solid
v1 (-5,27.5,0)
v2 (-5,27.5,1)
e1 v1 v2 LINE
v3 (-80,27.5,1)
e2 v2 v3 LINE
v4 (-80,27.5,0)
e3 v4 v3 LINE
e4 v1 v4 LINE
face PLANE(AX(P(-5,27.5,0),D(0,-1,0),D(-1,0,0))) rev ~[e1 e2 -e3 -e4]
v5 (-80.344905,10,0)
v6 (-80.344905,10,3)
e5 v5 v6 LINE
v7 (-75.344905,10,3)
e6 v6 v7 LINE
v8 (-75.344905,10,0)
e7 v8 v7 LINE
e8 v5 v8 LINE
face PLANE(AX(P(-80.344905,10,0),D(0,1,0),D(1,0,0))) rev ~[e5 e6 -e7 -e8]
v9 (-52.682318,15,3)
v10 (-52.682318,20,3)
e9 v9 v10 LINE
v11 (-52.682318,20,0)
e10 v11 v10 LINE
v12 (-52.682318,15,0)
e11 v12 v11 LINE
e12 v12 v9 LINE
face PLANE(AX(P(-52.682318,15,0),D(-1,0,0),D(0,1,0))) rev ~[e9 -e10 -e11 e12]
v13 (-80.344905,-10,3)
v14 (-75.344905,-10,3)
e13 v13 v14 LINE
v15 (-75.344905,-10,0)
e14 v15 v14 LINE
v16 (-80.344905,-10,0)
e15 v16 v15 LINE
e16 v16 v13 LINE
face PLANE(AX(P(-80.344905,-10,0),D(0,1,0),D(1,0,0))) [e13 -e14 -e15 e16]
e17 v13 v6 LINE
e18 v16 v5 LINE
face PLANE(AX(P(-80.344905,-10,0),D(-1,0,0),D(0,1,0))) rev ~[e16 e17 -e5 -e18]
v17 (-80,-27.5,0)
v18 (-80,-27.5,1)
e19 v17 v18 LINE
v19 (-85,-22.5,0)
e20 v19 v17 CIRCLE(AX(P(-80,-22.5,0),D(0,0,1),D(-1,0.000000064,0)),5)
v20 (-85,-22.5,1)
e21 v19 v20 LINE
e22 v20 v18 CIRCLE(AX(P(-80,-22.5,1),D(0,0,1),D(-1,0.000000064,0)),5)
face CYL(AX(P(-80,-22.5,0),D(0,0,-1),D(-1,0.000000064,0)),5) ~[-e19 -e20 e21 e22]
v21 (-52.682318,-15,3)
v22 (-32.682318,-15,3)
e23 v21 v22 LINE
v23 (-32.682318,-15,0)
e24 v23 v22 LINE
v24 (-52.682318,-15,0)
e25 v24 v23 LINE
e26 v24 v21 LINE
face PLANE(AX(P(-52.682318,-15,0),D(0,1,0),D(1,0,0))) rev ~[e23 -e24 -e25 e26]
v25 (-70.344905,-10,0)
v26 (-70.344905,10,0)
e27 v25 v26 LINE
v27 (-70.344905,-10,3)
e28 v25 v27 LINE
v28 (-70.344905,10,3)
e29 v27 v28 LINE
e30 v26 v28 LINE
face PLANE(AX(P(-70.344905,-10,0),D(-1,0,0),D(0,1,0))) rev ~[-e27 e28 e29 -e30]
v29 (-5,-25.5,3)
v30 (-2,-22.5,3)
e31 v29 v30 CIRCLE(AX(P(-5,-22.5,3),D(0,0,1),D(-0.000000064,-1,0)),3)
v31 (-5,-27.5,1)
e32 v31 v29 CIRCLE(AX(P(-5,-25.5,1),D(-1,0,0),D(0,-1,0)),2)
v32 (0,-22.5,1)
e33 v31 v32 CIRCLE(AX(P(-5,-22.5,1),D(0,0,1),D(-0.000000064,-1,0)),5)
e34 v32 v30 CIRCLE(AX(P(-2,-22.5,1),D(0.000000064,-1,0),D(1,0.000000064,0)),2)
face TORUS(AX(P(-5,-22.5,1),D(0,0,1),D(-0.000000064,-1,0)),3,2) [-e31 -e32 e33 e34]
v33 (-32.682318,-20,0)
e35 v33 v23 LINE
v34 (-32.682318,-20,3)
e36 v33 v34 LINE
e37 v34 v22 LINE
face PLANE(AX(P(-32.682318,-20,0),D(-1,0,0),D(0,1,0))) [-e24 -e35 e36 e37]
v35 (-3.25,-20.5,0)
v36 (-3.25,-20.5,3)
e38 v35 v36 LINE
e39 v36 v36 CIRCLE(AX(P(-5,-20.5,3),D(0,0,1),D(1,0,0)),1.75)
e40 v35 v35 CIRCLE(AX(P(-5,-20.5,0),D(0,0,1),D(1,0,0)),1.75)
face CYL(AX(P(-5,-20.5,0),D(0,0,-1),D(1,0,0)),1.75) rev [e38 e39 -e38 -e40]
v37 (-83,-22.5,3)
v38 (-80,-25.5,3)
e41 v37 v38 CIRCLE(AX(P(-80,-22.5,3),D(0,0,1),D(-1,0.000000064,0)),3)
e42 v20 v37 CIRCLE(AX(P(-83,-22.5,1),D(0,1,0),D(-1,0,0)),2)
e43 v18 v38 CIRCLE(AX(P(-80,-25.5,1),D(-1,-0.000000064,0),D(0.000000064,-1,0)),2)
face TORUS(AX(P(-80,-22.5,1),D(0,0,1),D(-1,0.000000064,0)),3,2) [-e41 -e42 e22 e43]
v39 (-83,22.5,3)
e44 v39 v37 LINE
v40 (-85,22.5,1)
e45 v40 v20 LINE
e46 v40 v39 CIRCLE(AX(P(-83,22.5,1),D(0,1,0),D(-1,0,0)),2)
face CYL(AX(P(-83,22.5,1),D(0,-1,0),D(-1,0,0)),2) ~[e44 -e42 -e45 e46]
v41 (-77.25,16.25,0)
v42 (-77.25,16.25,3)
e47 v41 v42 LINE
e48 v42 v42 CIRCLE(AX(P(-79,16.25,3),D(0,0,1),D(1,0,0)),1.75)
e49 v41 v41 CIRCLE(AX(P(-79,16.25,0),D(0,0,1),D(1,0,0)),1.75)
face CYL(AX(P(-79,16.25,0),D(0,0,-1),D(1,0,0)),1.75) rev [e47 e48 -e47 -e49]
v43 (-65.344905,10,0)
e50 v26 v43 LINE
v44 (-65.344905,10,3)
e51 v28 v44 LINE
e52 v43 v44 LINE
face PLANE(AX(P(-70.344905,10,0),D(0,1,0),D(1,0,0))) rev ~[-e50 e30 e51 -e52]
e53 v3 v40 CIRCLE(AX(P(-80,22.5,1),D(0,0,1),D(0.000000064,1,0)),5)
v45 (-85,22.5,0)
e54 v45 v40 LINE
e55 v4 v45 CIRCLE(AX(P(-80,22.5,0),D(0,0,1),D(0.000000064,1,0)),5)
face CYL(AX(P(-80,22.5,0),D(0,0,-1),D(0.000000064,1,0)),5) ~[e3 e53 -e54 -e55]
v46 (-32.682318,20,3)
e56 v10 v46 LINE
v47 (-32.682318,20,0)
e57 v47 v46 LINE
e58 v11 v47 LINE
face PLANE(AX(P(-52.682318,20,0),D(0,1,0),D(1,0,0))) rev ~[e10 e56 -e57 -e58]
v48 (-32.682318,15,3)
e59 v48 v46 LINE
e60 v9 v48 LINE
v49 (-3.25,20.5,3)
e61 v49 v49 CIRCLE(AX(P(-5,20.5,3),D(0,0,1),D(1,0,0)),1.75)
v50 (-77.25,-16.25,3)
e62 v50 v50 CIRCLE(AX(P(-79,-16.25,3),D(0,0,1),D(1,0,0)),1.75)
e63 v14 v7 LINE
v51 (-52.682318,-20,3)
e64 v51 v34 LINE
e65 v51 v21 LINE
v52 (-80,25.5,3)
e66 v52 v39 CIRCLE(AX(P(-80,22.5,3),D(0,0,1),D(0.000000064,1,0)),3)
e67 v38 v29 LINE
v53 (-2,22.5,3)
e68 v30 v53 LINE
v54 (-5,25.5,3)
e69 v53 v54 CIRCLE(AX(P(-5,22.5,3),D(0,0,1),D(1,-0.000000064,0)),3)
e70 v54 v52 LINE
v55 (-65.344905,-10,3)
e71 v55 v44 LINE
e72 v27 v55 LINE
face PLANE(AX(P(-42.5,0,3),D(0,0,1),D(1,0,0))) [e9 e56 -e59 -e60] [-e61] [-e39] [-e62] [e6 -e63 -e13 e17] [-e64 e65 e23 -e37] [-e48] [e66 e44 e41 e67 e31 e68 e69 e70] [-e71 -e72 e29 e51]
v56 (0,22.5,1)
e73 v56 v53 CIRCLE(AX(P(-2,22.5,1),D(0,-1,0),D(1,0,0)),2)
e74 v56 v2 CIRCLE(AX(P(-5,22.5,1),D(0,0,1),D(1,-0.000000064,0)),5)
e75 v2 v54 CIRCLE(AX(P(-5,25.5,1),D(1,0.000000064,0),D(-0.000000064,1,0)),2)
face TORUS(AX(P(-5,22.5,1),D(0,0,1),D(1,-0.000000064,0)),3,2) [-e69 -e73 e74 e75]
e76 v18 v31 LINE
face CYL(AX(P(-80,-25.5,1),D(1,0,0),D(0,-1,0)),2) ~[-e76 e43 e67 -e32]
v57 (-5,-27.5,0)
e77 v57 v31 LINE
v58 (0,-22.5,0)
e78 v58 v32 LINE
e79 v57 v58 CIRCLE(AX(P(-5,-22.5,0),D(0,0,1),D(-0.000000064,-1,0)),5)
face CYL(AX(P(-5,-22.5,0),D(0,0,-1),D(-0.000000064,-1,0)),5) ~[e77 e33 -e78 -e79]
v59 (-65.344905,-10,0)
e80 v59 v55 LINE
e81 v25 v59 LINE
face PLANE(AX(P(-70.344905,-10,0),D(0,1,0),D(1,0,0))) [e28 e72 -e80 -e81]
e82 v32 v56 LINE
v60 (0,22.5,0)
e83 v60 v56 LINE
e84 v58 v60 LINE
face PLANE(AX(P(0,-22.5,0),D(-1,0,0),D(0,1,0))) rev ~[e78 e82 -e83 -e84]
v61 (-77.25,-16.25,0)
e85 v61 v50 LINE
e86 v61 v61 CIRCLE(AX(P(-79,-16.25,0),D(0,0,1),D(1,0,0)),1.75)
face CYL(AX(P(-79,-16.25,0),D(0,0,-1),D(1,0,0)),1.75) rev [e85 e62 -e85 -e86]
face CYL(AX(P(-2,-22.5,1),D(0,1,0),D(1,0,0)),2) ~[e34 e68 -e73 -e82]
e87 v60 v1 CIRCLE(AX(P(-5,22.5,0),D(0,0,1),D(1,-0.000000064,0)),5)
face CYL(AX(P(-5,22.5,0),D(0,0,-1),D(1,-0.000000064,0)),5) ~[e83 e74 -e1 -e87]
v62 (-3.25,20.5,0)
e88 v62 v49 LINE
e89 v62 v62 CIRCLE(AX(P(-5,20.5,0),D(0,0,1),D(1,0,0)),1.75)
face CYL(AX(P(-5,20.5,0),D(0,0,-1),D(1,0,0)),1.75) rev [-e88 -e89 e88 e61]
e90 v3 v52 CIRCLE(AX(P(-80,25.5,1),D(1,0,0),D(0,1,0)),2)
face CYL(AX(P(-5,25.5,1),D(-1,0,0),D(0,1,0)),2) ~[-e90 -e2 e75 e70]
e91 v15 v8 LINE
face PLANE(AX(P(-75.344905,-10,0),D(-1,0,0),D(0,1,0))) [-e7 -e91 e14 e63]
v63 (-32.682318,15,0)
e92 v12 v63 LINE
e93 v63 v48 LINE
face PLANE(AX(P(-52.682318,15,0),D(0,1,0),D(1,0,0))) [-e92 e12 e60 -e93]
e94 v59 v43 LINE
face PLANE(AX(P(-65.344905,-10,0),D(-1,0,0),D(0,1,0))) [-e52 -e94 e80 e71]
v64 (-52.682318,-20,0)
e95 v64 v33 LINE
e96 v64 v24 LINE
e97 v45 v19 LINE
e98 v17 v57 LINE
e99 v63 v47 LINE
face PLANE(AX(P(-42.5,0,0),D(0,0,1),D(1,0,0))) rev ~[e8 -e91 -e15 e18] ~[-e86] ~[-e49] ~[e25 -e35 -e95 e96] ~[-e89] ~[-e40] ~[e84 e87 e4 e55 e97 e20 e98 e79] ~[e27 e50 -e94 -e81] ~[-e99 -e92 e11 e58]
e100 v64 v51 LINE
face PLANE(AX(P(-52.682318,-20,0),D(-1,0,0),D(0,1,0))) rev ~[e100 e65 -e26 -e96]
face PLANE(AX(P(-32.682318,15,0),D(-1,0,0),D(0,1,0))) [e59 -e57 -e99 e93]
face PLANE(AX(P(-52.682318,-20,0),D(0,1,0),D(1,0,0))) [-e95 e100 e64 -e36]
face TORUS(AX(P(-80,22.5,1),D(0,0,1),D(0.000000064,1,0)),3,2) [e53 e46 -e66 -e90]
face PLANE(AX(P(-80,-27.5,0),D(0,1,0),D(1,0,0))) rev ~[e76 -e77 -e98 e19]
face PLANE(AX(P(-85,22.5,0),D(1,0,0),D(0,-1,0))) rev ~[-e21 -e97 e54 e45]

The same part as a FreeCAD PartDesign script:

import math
import FreeCAD as App
import Part
import Sketcher
from FreeCAD import Vector
Q = App.Units.Quantity


def edges_at(feature, points):
    """Names of the edges that pass closest to the given points."""
    edges = feature.Shape.Edges
    near = lambda p: min(range(len(edges)), key=lambda i: edges[i].distToShape(Part.Vertex(*p))[0])
    return sorted({f"Edge{near(p) + 1}" for p in points})

doc = App.newDocument("Part")
body = doc.addObject("PartDesign::Body", "Body")

sketch1 = body.newObject("Sketcher::SketchObject", "Sketch")
sketch1.AttachmentSupport = (doc.getObject("XY_Plane"), [""])
sketch1.MapMode = "FlatFace"
sketch1.addGeometry([
    Part.ArcOfCircle(Part.Circle(Vector(-5, 22.5, 0), Vector(0, 0, 1), 5), math.radians(0), math.radians(90)),
    Part.LineSegment(Vector(-5, 27.5, 0), Vector(-80, 27.5, 0)),
    Part.ArcOfCircle(Part.Circle(Vector(-80, 22.5, 0), Vector(0, 0, 1), 5), math.radians(90), math.radians(180)),
    Part.LineSegment(Vector(-85, 22.5, 0), Vector(-85, -22.5, 0)),
    Part.ArcOfCircle(Part.Circle(Vector(-80, -22.5, 0), Vector(0, 0, 1), 5), math.radians(180), math.radians(270)),
    Part.LineSegment(Vector(-80, -27.5, 0), Vector(-5, -27.5, 0)),
    Part.ArcOfCircle(Part.Circle(Vector(-5, -22.5, 0), Vector(0, 0, 1), 5), math.radians(-90), math.radians(0)),
    Part.LineSegment(Vector(0, -22.5, 0), Vector(0, 22.5, 0)),
    Part.Circle(Vector(-79, -16.2, 0), Vector(0, 0, 1), 1.8),
    Part.LineSegment(Vector(-32.7, -20, 0), Vector(-52.7, -20, 0)),
    Part.LineSegment(Vector(-52.7, -20, 0), Vector(-52.7, -15, 0)),
    Part.LineSegment(Vector(-52.7, -15, 0), Vector(-32.7, -15, 0)),
    Part.LineSegment(Vector(-32.7, -15, 0), Vector(-32.7, -20, 0)),
    Part.Circle(Vector(-5, -20.5, 0), Vector(0, 0, 1), 1.8),
    Part.LineSegment(Vector(-75.3, -10, 0), Vector(-80.3, -10, 0)),
    Part.LineSegment(Vector(-80.3, -10, 0), Vector(-80.3, 10, 0)),
    Part.LineSegment(Vector(-80.3, 10, 0), Vector(-75.3, 10, 0)),
    Part.LineSegment(Vector(-75.3, 10, 0), Vector(-75.3, -10, 0)),
    Part.LineSegment(Vector(-65.3, -10, 0), Vector(-70.3, -10, 0)),
    Part.LineSegment(Vector(-70.3, -10, 0), Vector(-70.3, 10, 0)),
    Part.LineSegment(Vector(-70.3, 10, 0), Vector(-65.3, 10, 0)),
    Part.LineSegment(Vector(-65.3, 10, 0), Vector(-65.3, -10, 0)),
    Part.Circle(Vector(-79, 16.2, 0), Vector(0, 0, 1), 1.8),
    Part.LineSegment(Vector(-32.7, 15, 0), Vector(-52.7, 15, 0)),
    Part.LineSegment(Vector(-52.7, 15, 0), Vector(-52.7, 20, 0)),
    Part.LineSegment(Vector(-52.7, 20, 0), Vector(-32.7, 20, 0)),
    Part.LineSegment(Vector(-32.7, 20, 0), Vector(-32.7, 15, 0)),
    Part.Circle(Vector(-5, 20.5, 0), Vector(0, 0, 1), 1.8),
], False)
sketch1.addConstraint([
    Sketcher.Constraint("Tangent", 0, 2, 1, 1),
    Sketcher.Constraint("Tangent", 1, 2, 2, 1),
    Sketcher.Constraint("Tangent", 2, 2, 3, 1),
    Sketcher.Constraint("Tangent", 3, 2, 4, 1),
    Sketcher.Constraint("Tangent", 4, 2, 5, 1),
    Sketcher.Constraint("Tangent", 5, 2, 6, 1),
    Sketcher.Constraint("Tangent", 6, 2, 7, 1),
    Sketcher.Constraint("Tangent", 7, 2, 0, 1),
    Sketcher.Constraint("Coincident", 9, 2, 10, 1),
    Sketcher.Constraint("Coincident", 10, 2, 11, 1),
    Sketcher.Constraint("Coincident", 11, 2, 12, 1),
    Sketcher.Constraint("Coincident", 12, 2, 9, 1),
    Sketcher.Constraint("Coincident", 14, 2, 15, 1),
    Sketcher.Constraint("Coincident", 15, 2, 16, 1),
    Sketcher.Constraint("Coincident", 16, 2, 17, 1),
    Sketcher.Constraint("Coincident", 17, 2, 14, 1),
    Sketcher.Constraint("Coincident", 18, 2, 19, 1),
    Sketcher.Constraint("Coincident", 19, 2, 20, 1),
    Sketcher.Constraint("Coincident", 20, 2, 21, 1),
    Sketcher.Constraint("Coincident", 21, 2, 18, 1),
    Sketcher.Constraint("Coincident", 23, 2, 24, 1),
    Sketcher.Constraint("Coincident", 24, 2, 25, 1),
    Sketcher.Constraint("Coincident", 25, 2, 26, 1),
    Sketcher.Constraint("Coincident", 26, 2, 23, 1),
    Sketcher.Constraint("Horizontal", 1),
    Sketcher.Constraint("Vertical", 3),
    Sketcher.Constraint("Horizontal", 5),
    Sketcher.Constraint("Vertical", 7),
    Sketcher.Constraint("Horizontal", 9),
    Sketcher.Constraint("Vertical", 10),
    Sketcher.Constraint("Horizontal", 11),
    Sketcher.Constraint("Vertical", 12),
    Sketcher.Constraint("Horizontal", 14),
    Sketcher.Constraint("Vertical", 15),
    Sketcher.Constraint("Horizontal", 16),
    Sketcher.Constraint("Vertical", 17),
    Sketcher.Constraint("Horizontal", 18),
    Sketcher.Constraint("Vertical", 19),
    Sketcher.Constraint("Horizontal", 20),
    Sketcher.Constraint("Vertical", 21),
    Sketcher.Constraint("Horizontal", 23),
    Sketcher.Constraint("Vertical", 24),
    Sketcher.Constraint("Horizontal", 25),
    Sketcher.Constraint("Vertical", 26),
    Sketcher.Constraint("Equal", 0, 2),
    Sketcher.Constraint("Equal", 2, 4),
    Sketcher.Constraint("Equal", 4, 6),
    Sketcher.Constraint("Equal", 8, 13),
    Sketcher.Constraint("Equal", 13, 22),
    Sketcher.Constraint("Equal", 22, 27),
    Sketcher.Constraint("Symmetric", 6, 2, 7, 2, -1, 1),
    Sketcher.Constraint("Symmetric", 8, 3, 22, 3, -1),
    Sketcher.Constraint("Symmetric", 13, 3, 27, 3, -1),
    Sketcher.Constraint("Symmetric", 10, 2, 23, 2, -1),
    Sketcher.Constraint("Symmetric", 12, 2, 25, 2, -1),
    Sketcher.Constraint("Horizontal", 17, 2, 18, 2),
    Sketcher.Constraint("Horizontal", 16, 2, 19, 2),
    Sketcher.Constraint("Vertical", 6, 3, 13, 3),
    Sketcher.Constraint("Equal", 16, 18),
    Sketcher.Constraint("Equal", 20, 10),
    Sketcher.Constraint("Equal", 25, 15),
    Sketcher.Constraint("Radius", 0, Q("5 mm")),
    Sketcher.Constraint("Diameter", 8, Q("3.5 mm")),
    Sketcher.Constraint("DistanceX", 1, 2, 1, 1, Q("75 mm")),
    Sketcher.Constraint("DistanceX", 9, 2, 9, 1, Q("20 mm")),
    Sketcher.Constraint("DistanceX", 14, 2, 14, 1, Q("5 mm")),
    Sketcher.Constraint("DistanceY", 3, 2, 3, 1, Q("45 mm")),
    Sketcher.Constraint("DistanceX", 8, 3, -1, 1, Q("79 mm")),
    Sketcher.Constraint("DistanceY", 9, 2, -1, 1, Q("20 mm")),
    Sketcher.Constraint("DistanceY", 14, 2, -1, 1, Q("10 mm")),
    Sketcher.Constraint("DistanceY", 6, 3, 13, 3, Q("2 mm")),
    Sketcher.Constraint("DistanceX", 17, 2, 18, 2, Q("5 mm")),
    Sketcher.Constraint("DistanceY", 8, 3, 22, 3, Q("32.5 mm")),
    Sketcher.Constraint("DistanceX", 9, 2, -1, 1, Q("52.682318 mm")),
    Sketcher.Constraint("DistanceX", 14, 2, -1, 1, Q("80.344905 mm")),
])
pad1 = body.newObject("PartDesign::Pad", "Pad")
pad1.Profile = sketch1
pad1.Length = 3
doc.recompute()

fillet = body.newObject("PartDesign::Fillet", "Fillet")
fillet.Base = (pad1, edges_at(pad1, [(-85, 0, 3)]))
fillet.Radius = 2

doc.recompute()
